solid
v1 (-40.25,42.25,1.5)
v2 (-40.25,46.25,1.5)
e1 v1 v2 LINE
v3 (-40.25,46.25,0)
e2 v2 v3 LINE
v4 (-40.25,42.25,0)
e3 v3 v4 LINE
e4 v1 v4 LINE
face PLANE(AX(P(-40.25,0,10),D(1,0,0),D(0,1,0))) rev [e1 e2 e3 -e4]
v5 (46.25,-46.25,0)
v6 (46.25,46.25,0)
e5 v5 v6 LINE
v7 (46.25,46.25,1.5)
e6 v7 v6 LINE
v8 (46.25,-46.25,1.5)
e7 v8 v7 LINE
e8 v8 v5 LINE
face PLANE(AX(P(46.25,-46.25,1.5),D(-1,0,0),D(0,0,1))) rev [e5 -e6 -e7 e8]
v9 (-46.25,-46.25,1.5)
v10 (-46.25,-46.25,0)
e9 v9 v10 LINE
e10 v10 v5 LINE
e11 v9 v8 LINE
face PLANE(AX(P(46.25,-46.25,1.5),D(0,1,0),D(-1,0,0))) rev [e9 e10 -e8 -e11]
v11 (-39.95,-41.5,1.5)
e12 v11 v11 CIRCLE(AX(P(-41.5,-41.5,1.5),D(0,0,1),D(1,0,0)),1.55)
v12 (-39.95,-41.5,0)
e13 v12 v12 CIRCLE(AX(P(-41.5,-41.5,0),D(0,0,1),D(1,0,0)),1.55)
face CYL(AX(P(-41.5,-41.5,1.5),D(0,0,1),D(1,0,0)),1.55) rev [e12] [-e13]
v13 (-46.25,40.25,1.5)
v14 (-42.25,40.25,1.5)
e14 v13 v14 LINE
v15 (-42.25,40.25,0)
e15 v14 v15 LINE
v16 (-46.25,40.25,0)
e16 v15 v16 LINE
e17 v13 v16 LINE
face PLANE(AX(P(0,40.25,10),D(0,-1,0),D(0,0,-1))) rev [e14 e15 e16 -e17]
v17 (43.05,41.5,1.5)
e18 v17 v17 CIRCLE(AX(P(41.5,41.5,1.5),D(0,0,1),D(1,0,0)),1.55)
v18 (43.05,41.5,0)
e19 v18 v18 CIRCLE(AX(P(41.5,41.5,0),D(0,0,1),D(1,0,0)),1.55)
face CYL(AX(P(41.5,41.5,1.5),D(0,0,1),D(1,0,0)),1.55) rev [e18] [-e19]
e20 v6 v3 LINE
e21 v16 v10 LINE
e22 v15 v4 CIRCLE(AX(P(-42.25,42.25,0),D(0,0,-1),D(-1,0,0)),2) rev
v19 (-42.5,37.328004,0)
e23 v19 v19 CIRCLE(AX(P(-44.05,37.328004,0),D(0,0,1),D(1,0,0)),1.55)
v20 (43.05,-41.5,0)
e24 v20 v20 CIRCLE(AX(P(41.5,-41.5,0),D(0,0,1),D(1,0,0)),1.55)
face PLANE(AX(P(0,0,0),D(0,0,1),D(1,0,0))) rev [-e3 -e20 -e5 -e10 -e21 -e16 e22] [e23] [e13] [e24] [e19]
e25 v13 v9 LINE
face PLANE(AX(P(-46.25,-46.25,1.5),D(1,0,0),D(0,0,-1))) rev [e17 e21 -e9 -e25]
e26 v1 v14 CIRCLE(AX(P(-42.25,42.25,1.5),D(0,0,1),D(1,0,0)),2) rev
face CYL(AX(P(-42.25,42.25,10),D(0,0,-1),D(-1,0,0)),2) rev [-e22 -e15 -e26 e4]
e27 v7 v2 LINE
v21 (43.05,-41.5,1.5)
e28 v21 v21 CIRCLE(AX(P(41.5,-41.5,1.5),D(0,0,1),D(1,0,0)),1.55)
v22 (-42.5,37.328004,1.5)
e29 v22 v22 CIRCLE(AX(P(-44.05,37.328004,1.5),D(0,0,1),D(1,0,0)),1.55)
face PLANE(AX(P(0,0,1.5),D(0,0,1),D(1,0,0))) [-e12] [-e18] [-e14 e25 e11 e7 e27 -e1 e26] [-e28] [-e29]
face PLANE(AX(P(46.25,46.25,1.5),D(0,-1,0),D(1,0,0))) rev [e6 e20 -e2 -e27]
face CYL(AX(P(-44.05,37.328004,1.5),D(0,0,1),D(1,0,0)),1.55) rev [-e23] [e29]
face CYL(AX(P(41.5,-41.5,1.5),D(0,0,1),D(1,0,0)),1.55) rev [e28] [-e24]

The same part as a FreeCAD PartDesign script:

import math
import FreeCAD as App
import Part
import Sketcher
from FreeCAD import Vector


def add_polygon(sketch, points):
    """Adds a closed chain of lines whose ends are joined by coincident constraints."""
    first, n = sketch.GeometryCount, len(points)
    for a, b in zip(points, points[1:] + points[:1]):
        sketch.addGeometry(Part.LineSegment(App.Vector(*a, 0), App.Vector(*b, 0)), False)
    for i in range(n):
        sketch.addConstraint(Sketcher.Constraint("Coincident", first + i, 2, first + (i + 1) % n, 1))

doc = App.newDocument("Part")
body = doc.addObject("PartDesign::Body", "Body")

# Sketch on XY plane
sketch1 = doc.addObject("Sketcher::SketchObject", "Sketch")
body.addObject(sketch1)
sketch1.AttachmentSupport = (doc.XY_Plane, [""])
sketch1.MapMode = "FlatFace"
add_polygon(sketch1, [(-46.25, 46.25), (-46.25, -46.25), (46.25, -46.25), (46.25, 46.25)])  # lines 0-3
sketch1.addConstraint([
    Sketcher.Constraint("Vertical", 0),
    Sketcher.Constraint("Horizontal", 1),
    Sketcher.Constraint("Vertical", 2),
    Sketcher.Constraint("Horizontal", 3),
    Sketcher.Constraint("Symmetric", 0, 2, 2, 2, -1, 1),
    Sketcher.Constraint("Equal", 3, 0),
    Sketcher.Constraint("DistanceX", 1, 1, 1, 2, 92.5),
])
pad1 = doc.addObject("PartDesign::Pad", "Pad")
body.addObject(pad1)
pad1.Profile = sketch1
pad1.Length = 1.5

# Sketch on XY plane
sketch2 = doc.addObject("Sketcher::SketchObject", "Sketch001")
body.addObject(sketch2)
sketch2.AttachmentSupport = (doc.XY_Plane, [""])
sketch2.MapMode = "FlatFace"
sketch2.AttachmentOffset = App.Placement(Vector(0, 0, 1.5), App.Rotation())
sketch2.addGeometry([
    Part.Circle(Vector(-44.05, 37.328004, 0), Vector(0, 0, 1), 1.55),
    Part.Circle(Vector(41.5, 41.5, 0), Vector(0, 0, 1), 1.55),
    Part.Circle(Vector(41.5, -41.5, 0), Vector(0, 0, 1), 1.55),
    Part.Circle(Vector(-41.5, -41.5, 0), Vector(0, 0, 1), 1.55),
], False)
sketch2.addConstraint([
    Sketcher.Constraint("Equal", 0, 1),
    Sketcher.Constraint("Equal", 1, 2),
    Sketcher.Constraint("Equal", 2, 3),
    Sketcher.Constraint("Symmetric", 1, 3, 3, 3, -1, 1),
    Sketcher.Constraint("Symmetric", 2, 3, 3, 3, -2),
    Sketcher.Constraint("Diameter", 0, 3.1),
    Sketcher.Constraint("DistanceY", 2, 3, 1, 3, 83.0),
    Sketcher.Constraint("DistanceX", 3, 3, 2, 3, 83.0),
    Sketcher.Constraint("DistanceX", 0, 3, -1, 1, 44.05),
    Sketcher.Constraint("DistanceY", -1, 1, 0, 3, 37.328004),
])
doc.recompute()
hole = doc.addObject("PartDesign::Hole", "Hole")
body.addObject(hole)
hole.Profile = sketch2
hole.ThreadType = "None"
hole.Diameter = 3.1
hole.DepthType = "ThroughAll"

# Sketch on XY plane
sketch3 = doc.addObject("Sketcher::SketchObject", "Sketch002")
body.addObject(sketch3)
sketch3.AttachmentSupport = (doc.XY_Plane, [""])
sketch3.MapMode = "FlatFace"
sketch3.addGeometry([
    Part.LineSegment(Vector(-46.25, 46.25, 0), Vector(-40.25, 46.25, 0)),  # 0
    Part.LineSegment(Vector(-40.25, 46.25, 0), Vector(-40.25, 42.25, 0)),  # 1
    Part.ArcOfCircle(Part.Circle(Vector(-42.25, 42.25, 0), Vector(0, 0, 1), 2), math.radians(-90), math.radians(0)),  # 2
    Part.LineSegment(Vector(-42.25, 40.25, 0), Vector(-46.25, 40.25, 0)),  # 3
    Part.LineSegment(Vector(-46.25, 40.25, 0), Vector(-46.25, 46.25, 0)),  # 4
], False)
sketch3.addConstraint([
    Sketcher.Constraint("Coincident", 0, 2, 1, 1),
    Sketcher.Constraint("Tangent", 1, 2, 2, 2),
    Sketcher.Constraint("Tangent", 2, 1, 3, 1),
    Sketcher.Constraint("Coincident", 3, 2, 4, 1),
    Sketcher.Constraint("Coincident", 4, 2, 0, 1),
    Sketcher.Constraint("Horizontal", 0),
    Sketcher.Constraint("Vertical", 1),
    Sketcher.Constraint("Horizontal", 3),
    Sketcher.Constraint("Vertical", 4),
    Sketcher.Constraint("Equal", 3, 1),
    Sketcher.Constraint("Radius", 2, 2.0),
    Sketcher.Constraint("DistanceX", 0, 1, 0, 2, 6.0),
    Sketcher.Constraint("DistanceX", 2, 3, -1, 1, 42.25),
    Sketcher.Constraint("DistanceY", -1, 1, 2, 3, 42.25),
])
pocket1 = doc.addObject("PartDesign::Pocket", "Pocket")
body.addObject(pocket1)
pocket1.Profile = sketch3
pocket1.Length = 10
pocket1.Reversed = True

doc.recompute()
